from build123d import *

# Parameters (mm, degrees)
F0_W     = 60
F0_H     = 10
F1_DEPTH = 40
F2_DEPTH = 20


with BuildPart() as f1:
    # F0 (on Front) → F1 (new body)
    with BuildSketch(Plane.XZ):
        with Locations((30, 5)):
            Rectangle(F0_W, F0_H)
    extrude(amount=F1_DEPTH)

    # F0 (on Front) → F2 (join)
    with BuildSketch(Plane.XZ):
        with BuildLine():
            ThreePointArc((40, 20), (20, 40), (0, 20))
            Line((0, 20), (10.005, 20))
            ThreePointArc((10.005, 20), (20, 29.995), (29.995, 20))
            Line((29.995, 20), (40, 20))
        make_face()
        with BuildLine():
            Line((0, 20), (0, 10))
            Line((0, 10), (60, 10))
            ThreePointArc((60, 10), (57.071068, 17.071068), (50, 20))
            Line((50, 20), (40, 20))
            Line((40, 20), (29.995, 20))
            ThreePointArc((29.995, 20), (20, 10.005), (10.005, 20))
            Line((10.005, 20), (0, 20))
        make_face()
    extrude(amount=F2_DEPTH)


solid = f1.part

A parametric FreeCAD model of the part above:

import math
import FreeCAD as App
import Part
import Sketcher
from FreeCAD import Vector
Q = App.Units.Quantity

doc = App.newDocument("Part")
body = doc.addObject("PartDesign::Body", "Body")

# Sketch on XZ plane
sketch1 = body.newObject("Sketcher::SketchObject", "Sketch")
sketch1.AttachmentSupport = (doc.getObject("XZ_Plane"), [""])
sketch1.MapMode = "FlatFace"
sketch1.addGeometry([
    Part.LineSegment(Vector(0, 10, 0), Vector(0, 0, 0)),
    Part.LineSegment(Vector(0, 0, 0), Vector(60, 0, 0)),
    Part.LineSegment(Vector(60, 0, 0), Vector(60, 10, 0)),
    Part.LineSegment(Vector(60, 10, 0), Vector(0, 10, 0)),
], False)
sketch1.addConstraint([
    Sketcher.Constraint("Coincident", 0, 2, 1, 1),
    Sketcher.Constraint("Coincident", 1, 2, 2, 1),
    Sketcher.Constraint("Coincident", 2, 2, 3, 1),
    Sketcher.Constraint("Coincident", 3, 2, 0, 1),
    Sketcher.Constraint("Vertical", 0),
    Sketcher.Constraint("Horizontal", 1),
    Sketcher.Constraint("Vertical", 2),
    Sketcher.Constraint("Horizontal", 3),
    Sketcher.Constraint("Coincident", 0, 2, -1, 1),
    Sketcher.Constraint("DistanceX", 1, 1, 1, 2, Q("60 mm")),
    Sketcher.Constraint("DistanceY", 0, 2, 0, 1, Q("10 mm")),
])
pad1 = body.newObject("PartDesign::Pad", "Pad")
pad1.Profile = sketch1
pad1.Length = 40

# Sketch on XZ plane
sketch2 = body.newObject("Sketcher::SketchObject", "Sketch001")
sketch2.AttachmentSupport = (doc.getObject("XZ_Plane"), [""])
sketch2.MapMode = "FlatFace"
sketch2.addGeometry([
    Part.ArcOfCircle(Part.Circle(Vector(20, 20, 0), Vector(0, 0, 1), 20), math.radians(0), math.radians(180)),  # 0
    Part.LineSegment(Vector(0, 20, 0), Vector(0, 10, 0)),  # 1
    Part.LineSegment(Vector(0, 10, 0), Vector(60, 10, 0)),  # 2
    Part.ArcOfCircle(Part.Circle(Vector(50, 10, 0), Vector(0, 0, 1), 10), math.radians(0), math.radians(90)),  # 3
    Part.LineSegment(Vector(50, 20, 0), Vector(40, 20, 0)),  # 4
    Part.Circle(Vector(20, 20, 0), Vector(0, 0, 1), 10),  # 5
], False)
sketch2.addConstraint([
    Sketcher.Constraint("Tangent", 0, 2, 1, 1),
    Sketcher.Constraint("Coincident", 1, 2, 2, 1),
    Sketcher.Constraint("Coincident", 2, 2, 3, 1),
    Sketcher.Constraint("Tangent", 3, 2, 4, 1),
    Sketcher.Constraint("Coincident", 4, 2, 0, 1),
    Sketcher.Constraint("Vertical", 1),
    Sketcher.Constraint("Horizontal", 2),
    Sketcher.Constraint("Horizontal", 4),
    Sketcher.Constraint("Coincident", 5, 3, 0, 3),
    Sketcher.Constraint("PointOnObject", 0, 2, -2),
    Sketcher.Constraint("Horizontal", 3, 3, 1, 2),
    Sketcher.Constraint("Horizontal", 0, 2, 3, 2),
    Sketcher.Constraint("Equal", 4, 1),
    Sketcher.Constraint("Radius", 0, Q("20 mm")),
    Sketcher.Constraint("Radius", 3, Q("9.999999 mm")),
    Sketcher.Constraint("Diameter", 5, Q("19.99 mm")),
    Sketcher.Constraint("DistanceY", -1, 1, 0, 3, Q("20 mm")),
])
pad2 = body.newObject("PartDesign::Pad", "Pad001")
pad2.Profile = sketch2
pad2.Length = 20

doc.recompute()
